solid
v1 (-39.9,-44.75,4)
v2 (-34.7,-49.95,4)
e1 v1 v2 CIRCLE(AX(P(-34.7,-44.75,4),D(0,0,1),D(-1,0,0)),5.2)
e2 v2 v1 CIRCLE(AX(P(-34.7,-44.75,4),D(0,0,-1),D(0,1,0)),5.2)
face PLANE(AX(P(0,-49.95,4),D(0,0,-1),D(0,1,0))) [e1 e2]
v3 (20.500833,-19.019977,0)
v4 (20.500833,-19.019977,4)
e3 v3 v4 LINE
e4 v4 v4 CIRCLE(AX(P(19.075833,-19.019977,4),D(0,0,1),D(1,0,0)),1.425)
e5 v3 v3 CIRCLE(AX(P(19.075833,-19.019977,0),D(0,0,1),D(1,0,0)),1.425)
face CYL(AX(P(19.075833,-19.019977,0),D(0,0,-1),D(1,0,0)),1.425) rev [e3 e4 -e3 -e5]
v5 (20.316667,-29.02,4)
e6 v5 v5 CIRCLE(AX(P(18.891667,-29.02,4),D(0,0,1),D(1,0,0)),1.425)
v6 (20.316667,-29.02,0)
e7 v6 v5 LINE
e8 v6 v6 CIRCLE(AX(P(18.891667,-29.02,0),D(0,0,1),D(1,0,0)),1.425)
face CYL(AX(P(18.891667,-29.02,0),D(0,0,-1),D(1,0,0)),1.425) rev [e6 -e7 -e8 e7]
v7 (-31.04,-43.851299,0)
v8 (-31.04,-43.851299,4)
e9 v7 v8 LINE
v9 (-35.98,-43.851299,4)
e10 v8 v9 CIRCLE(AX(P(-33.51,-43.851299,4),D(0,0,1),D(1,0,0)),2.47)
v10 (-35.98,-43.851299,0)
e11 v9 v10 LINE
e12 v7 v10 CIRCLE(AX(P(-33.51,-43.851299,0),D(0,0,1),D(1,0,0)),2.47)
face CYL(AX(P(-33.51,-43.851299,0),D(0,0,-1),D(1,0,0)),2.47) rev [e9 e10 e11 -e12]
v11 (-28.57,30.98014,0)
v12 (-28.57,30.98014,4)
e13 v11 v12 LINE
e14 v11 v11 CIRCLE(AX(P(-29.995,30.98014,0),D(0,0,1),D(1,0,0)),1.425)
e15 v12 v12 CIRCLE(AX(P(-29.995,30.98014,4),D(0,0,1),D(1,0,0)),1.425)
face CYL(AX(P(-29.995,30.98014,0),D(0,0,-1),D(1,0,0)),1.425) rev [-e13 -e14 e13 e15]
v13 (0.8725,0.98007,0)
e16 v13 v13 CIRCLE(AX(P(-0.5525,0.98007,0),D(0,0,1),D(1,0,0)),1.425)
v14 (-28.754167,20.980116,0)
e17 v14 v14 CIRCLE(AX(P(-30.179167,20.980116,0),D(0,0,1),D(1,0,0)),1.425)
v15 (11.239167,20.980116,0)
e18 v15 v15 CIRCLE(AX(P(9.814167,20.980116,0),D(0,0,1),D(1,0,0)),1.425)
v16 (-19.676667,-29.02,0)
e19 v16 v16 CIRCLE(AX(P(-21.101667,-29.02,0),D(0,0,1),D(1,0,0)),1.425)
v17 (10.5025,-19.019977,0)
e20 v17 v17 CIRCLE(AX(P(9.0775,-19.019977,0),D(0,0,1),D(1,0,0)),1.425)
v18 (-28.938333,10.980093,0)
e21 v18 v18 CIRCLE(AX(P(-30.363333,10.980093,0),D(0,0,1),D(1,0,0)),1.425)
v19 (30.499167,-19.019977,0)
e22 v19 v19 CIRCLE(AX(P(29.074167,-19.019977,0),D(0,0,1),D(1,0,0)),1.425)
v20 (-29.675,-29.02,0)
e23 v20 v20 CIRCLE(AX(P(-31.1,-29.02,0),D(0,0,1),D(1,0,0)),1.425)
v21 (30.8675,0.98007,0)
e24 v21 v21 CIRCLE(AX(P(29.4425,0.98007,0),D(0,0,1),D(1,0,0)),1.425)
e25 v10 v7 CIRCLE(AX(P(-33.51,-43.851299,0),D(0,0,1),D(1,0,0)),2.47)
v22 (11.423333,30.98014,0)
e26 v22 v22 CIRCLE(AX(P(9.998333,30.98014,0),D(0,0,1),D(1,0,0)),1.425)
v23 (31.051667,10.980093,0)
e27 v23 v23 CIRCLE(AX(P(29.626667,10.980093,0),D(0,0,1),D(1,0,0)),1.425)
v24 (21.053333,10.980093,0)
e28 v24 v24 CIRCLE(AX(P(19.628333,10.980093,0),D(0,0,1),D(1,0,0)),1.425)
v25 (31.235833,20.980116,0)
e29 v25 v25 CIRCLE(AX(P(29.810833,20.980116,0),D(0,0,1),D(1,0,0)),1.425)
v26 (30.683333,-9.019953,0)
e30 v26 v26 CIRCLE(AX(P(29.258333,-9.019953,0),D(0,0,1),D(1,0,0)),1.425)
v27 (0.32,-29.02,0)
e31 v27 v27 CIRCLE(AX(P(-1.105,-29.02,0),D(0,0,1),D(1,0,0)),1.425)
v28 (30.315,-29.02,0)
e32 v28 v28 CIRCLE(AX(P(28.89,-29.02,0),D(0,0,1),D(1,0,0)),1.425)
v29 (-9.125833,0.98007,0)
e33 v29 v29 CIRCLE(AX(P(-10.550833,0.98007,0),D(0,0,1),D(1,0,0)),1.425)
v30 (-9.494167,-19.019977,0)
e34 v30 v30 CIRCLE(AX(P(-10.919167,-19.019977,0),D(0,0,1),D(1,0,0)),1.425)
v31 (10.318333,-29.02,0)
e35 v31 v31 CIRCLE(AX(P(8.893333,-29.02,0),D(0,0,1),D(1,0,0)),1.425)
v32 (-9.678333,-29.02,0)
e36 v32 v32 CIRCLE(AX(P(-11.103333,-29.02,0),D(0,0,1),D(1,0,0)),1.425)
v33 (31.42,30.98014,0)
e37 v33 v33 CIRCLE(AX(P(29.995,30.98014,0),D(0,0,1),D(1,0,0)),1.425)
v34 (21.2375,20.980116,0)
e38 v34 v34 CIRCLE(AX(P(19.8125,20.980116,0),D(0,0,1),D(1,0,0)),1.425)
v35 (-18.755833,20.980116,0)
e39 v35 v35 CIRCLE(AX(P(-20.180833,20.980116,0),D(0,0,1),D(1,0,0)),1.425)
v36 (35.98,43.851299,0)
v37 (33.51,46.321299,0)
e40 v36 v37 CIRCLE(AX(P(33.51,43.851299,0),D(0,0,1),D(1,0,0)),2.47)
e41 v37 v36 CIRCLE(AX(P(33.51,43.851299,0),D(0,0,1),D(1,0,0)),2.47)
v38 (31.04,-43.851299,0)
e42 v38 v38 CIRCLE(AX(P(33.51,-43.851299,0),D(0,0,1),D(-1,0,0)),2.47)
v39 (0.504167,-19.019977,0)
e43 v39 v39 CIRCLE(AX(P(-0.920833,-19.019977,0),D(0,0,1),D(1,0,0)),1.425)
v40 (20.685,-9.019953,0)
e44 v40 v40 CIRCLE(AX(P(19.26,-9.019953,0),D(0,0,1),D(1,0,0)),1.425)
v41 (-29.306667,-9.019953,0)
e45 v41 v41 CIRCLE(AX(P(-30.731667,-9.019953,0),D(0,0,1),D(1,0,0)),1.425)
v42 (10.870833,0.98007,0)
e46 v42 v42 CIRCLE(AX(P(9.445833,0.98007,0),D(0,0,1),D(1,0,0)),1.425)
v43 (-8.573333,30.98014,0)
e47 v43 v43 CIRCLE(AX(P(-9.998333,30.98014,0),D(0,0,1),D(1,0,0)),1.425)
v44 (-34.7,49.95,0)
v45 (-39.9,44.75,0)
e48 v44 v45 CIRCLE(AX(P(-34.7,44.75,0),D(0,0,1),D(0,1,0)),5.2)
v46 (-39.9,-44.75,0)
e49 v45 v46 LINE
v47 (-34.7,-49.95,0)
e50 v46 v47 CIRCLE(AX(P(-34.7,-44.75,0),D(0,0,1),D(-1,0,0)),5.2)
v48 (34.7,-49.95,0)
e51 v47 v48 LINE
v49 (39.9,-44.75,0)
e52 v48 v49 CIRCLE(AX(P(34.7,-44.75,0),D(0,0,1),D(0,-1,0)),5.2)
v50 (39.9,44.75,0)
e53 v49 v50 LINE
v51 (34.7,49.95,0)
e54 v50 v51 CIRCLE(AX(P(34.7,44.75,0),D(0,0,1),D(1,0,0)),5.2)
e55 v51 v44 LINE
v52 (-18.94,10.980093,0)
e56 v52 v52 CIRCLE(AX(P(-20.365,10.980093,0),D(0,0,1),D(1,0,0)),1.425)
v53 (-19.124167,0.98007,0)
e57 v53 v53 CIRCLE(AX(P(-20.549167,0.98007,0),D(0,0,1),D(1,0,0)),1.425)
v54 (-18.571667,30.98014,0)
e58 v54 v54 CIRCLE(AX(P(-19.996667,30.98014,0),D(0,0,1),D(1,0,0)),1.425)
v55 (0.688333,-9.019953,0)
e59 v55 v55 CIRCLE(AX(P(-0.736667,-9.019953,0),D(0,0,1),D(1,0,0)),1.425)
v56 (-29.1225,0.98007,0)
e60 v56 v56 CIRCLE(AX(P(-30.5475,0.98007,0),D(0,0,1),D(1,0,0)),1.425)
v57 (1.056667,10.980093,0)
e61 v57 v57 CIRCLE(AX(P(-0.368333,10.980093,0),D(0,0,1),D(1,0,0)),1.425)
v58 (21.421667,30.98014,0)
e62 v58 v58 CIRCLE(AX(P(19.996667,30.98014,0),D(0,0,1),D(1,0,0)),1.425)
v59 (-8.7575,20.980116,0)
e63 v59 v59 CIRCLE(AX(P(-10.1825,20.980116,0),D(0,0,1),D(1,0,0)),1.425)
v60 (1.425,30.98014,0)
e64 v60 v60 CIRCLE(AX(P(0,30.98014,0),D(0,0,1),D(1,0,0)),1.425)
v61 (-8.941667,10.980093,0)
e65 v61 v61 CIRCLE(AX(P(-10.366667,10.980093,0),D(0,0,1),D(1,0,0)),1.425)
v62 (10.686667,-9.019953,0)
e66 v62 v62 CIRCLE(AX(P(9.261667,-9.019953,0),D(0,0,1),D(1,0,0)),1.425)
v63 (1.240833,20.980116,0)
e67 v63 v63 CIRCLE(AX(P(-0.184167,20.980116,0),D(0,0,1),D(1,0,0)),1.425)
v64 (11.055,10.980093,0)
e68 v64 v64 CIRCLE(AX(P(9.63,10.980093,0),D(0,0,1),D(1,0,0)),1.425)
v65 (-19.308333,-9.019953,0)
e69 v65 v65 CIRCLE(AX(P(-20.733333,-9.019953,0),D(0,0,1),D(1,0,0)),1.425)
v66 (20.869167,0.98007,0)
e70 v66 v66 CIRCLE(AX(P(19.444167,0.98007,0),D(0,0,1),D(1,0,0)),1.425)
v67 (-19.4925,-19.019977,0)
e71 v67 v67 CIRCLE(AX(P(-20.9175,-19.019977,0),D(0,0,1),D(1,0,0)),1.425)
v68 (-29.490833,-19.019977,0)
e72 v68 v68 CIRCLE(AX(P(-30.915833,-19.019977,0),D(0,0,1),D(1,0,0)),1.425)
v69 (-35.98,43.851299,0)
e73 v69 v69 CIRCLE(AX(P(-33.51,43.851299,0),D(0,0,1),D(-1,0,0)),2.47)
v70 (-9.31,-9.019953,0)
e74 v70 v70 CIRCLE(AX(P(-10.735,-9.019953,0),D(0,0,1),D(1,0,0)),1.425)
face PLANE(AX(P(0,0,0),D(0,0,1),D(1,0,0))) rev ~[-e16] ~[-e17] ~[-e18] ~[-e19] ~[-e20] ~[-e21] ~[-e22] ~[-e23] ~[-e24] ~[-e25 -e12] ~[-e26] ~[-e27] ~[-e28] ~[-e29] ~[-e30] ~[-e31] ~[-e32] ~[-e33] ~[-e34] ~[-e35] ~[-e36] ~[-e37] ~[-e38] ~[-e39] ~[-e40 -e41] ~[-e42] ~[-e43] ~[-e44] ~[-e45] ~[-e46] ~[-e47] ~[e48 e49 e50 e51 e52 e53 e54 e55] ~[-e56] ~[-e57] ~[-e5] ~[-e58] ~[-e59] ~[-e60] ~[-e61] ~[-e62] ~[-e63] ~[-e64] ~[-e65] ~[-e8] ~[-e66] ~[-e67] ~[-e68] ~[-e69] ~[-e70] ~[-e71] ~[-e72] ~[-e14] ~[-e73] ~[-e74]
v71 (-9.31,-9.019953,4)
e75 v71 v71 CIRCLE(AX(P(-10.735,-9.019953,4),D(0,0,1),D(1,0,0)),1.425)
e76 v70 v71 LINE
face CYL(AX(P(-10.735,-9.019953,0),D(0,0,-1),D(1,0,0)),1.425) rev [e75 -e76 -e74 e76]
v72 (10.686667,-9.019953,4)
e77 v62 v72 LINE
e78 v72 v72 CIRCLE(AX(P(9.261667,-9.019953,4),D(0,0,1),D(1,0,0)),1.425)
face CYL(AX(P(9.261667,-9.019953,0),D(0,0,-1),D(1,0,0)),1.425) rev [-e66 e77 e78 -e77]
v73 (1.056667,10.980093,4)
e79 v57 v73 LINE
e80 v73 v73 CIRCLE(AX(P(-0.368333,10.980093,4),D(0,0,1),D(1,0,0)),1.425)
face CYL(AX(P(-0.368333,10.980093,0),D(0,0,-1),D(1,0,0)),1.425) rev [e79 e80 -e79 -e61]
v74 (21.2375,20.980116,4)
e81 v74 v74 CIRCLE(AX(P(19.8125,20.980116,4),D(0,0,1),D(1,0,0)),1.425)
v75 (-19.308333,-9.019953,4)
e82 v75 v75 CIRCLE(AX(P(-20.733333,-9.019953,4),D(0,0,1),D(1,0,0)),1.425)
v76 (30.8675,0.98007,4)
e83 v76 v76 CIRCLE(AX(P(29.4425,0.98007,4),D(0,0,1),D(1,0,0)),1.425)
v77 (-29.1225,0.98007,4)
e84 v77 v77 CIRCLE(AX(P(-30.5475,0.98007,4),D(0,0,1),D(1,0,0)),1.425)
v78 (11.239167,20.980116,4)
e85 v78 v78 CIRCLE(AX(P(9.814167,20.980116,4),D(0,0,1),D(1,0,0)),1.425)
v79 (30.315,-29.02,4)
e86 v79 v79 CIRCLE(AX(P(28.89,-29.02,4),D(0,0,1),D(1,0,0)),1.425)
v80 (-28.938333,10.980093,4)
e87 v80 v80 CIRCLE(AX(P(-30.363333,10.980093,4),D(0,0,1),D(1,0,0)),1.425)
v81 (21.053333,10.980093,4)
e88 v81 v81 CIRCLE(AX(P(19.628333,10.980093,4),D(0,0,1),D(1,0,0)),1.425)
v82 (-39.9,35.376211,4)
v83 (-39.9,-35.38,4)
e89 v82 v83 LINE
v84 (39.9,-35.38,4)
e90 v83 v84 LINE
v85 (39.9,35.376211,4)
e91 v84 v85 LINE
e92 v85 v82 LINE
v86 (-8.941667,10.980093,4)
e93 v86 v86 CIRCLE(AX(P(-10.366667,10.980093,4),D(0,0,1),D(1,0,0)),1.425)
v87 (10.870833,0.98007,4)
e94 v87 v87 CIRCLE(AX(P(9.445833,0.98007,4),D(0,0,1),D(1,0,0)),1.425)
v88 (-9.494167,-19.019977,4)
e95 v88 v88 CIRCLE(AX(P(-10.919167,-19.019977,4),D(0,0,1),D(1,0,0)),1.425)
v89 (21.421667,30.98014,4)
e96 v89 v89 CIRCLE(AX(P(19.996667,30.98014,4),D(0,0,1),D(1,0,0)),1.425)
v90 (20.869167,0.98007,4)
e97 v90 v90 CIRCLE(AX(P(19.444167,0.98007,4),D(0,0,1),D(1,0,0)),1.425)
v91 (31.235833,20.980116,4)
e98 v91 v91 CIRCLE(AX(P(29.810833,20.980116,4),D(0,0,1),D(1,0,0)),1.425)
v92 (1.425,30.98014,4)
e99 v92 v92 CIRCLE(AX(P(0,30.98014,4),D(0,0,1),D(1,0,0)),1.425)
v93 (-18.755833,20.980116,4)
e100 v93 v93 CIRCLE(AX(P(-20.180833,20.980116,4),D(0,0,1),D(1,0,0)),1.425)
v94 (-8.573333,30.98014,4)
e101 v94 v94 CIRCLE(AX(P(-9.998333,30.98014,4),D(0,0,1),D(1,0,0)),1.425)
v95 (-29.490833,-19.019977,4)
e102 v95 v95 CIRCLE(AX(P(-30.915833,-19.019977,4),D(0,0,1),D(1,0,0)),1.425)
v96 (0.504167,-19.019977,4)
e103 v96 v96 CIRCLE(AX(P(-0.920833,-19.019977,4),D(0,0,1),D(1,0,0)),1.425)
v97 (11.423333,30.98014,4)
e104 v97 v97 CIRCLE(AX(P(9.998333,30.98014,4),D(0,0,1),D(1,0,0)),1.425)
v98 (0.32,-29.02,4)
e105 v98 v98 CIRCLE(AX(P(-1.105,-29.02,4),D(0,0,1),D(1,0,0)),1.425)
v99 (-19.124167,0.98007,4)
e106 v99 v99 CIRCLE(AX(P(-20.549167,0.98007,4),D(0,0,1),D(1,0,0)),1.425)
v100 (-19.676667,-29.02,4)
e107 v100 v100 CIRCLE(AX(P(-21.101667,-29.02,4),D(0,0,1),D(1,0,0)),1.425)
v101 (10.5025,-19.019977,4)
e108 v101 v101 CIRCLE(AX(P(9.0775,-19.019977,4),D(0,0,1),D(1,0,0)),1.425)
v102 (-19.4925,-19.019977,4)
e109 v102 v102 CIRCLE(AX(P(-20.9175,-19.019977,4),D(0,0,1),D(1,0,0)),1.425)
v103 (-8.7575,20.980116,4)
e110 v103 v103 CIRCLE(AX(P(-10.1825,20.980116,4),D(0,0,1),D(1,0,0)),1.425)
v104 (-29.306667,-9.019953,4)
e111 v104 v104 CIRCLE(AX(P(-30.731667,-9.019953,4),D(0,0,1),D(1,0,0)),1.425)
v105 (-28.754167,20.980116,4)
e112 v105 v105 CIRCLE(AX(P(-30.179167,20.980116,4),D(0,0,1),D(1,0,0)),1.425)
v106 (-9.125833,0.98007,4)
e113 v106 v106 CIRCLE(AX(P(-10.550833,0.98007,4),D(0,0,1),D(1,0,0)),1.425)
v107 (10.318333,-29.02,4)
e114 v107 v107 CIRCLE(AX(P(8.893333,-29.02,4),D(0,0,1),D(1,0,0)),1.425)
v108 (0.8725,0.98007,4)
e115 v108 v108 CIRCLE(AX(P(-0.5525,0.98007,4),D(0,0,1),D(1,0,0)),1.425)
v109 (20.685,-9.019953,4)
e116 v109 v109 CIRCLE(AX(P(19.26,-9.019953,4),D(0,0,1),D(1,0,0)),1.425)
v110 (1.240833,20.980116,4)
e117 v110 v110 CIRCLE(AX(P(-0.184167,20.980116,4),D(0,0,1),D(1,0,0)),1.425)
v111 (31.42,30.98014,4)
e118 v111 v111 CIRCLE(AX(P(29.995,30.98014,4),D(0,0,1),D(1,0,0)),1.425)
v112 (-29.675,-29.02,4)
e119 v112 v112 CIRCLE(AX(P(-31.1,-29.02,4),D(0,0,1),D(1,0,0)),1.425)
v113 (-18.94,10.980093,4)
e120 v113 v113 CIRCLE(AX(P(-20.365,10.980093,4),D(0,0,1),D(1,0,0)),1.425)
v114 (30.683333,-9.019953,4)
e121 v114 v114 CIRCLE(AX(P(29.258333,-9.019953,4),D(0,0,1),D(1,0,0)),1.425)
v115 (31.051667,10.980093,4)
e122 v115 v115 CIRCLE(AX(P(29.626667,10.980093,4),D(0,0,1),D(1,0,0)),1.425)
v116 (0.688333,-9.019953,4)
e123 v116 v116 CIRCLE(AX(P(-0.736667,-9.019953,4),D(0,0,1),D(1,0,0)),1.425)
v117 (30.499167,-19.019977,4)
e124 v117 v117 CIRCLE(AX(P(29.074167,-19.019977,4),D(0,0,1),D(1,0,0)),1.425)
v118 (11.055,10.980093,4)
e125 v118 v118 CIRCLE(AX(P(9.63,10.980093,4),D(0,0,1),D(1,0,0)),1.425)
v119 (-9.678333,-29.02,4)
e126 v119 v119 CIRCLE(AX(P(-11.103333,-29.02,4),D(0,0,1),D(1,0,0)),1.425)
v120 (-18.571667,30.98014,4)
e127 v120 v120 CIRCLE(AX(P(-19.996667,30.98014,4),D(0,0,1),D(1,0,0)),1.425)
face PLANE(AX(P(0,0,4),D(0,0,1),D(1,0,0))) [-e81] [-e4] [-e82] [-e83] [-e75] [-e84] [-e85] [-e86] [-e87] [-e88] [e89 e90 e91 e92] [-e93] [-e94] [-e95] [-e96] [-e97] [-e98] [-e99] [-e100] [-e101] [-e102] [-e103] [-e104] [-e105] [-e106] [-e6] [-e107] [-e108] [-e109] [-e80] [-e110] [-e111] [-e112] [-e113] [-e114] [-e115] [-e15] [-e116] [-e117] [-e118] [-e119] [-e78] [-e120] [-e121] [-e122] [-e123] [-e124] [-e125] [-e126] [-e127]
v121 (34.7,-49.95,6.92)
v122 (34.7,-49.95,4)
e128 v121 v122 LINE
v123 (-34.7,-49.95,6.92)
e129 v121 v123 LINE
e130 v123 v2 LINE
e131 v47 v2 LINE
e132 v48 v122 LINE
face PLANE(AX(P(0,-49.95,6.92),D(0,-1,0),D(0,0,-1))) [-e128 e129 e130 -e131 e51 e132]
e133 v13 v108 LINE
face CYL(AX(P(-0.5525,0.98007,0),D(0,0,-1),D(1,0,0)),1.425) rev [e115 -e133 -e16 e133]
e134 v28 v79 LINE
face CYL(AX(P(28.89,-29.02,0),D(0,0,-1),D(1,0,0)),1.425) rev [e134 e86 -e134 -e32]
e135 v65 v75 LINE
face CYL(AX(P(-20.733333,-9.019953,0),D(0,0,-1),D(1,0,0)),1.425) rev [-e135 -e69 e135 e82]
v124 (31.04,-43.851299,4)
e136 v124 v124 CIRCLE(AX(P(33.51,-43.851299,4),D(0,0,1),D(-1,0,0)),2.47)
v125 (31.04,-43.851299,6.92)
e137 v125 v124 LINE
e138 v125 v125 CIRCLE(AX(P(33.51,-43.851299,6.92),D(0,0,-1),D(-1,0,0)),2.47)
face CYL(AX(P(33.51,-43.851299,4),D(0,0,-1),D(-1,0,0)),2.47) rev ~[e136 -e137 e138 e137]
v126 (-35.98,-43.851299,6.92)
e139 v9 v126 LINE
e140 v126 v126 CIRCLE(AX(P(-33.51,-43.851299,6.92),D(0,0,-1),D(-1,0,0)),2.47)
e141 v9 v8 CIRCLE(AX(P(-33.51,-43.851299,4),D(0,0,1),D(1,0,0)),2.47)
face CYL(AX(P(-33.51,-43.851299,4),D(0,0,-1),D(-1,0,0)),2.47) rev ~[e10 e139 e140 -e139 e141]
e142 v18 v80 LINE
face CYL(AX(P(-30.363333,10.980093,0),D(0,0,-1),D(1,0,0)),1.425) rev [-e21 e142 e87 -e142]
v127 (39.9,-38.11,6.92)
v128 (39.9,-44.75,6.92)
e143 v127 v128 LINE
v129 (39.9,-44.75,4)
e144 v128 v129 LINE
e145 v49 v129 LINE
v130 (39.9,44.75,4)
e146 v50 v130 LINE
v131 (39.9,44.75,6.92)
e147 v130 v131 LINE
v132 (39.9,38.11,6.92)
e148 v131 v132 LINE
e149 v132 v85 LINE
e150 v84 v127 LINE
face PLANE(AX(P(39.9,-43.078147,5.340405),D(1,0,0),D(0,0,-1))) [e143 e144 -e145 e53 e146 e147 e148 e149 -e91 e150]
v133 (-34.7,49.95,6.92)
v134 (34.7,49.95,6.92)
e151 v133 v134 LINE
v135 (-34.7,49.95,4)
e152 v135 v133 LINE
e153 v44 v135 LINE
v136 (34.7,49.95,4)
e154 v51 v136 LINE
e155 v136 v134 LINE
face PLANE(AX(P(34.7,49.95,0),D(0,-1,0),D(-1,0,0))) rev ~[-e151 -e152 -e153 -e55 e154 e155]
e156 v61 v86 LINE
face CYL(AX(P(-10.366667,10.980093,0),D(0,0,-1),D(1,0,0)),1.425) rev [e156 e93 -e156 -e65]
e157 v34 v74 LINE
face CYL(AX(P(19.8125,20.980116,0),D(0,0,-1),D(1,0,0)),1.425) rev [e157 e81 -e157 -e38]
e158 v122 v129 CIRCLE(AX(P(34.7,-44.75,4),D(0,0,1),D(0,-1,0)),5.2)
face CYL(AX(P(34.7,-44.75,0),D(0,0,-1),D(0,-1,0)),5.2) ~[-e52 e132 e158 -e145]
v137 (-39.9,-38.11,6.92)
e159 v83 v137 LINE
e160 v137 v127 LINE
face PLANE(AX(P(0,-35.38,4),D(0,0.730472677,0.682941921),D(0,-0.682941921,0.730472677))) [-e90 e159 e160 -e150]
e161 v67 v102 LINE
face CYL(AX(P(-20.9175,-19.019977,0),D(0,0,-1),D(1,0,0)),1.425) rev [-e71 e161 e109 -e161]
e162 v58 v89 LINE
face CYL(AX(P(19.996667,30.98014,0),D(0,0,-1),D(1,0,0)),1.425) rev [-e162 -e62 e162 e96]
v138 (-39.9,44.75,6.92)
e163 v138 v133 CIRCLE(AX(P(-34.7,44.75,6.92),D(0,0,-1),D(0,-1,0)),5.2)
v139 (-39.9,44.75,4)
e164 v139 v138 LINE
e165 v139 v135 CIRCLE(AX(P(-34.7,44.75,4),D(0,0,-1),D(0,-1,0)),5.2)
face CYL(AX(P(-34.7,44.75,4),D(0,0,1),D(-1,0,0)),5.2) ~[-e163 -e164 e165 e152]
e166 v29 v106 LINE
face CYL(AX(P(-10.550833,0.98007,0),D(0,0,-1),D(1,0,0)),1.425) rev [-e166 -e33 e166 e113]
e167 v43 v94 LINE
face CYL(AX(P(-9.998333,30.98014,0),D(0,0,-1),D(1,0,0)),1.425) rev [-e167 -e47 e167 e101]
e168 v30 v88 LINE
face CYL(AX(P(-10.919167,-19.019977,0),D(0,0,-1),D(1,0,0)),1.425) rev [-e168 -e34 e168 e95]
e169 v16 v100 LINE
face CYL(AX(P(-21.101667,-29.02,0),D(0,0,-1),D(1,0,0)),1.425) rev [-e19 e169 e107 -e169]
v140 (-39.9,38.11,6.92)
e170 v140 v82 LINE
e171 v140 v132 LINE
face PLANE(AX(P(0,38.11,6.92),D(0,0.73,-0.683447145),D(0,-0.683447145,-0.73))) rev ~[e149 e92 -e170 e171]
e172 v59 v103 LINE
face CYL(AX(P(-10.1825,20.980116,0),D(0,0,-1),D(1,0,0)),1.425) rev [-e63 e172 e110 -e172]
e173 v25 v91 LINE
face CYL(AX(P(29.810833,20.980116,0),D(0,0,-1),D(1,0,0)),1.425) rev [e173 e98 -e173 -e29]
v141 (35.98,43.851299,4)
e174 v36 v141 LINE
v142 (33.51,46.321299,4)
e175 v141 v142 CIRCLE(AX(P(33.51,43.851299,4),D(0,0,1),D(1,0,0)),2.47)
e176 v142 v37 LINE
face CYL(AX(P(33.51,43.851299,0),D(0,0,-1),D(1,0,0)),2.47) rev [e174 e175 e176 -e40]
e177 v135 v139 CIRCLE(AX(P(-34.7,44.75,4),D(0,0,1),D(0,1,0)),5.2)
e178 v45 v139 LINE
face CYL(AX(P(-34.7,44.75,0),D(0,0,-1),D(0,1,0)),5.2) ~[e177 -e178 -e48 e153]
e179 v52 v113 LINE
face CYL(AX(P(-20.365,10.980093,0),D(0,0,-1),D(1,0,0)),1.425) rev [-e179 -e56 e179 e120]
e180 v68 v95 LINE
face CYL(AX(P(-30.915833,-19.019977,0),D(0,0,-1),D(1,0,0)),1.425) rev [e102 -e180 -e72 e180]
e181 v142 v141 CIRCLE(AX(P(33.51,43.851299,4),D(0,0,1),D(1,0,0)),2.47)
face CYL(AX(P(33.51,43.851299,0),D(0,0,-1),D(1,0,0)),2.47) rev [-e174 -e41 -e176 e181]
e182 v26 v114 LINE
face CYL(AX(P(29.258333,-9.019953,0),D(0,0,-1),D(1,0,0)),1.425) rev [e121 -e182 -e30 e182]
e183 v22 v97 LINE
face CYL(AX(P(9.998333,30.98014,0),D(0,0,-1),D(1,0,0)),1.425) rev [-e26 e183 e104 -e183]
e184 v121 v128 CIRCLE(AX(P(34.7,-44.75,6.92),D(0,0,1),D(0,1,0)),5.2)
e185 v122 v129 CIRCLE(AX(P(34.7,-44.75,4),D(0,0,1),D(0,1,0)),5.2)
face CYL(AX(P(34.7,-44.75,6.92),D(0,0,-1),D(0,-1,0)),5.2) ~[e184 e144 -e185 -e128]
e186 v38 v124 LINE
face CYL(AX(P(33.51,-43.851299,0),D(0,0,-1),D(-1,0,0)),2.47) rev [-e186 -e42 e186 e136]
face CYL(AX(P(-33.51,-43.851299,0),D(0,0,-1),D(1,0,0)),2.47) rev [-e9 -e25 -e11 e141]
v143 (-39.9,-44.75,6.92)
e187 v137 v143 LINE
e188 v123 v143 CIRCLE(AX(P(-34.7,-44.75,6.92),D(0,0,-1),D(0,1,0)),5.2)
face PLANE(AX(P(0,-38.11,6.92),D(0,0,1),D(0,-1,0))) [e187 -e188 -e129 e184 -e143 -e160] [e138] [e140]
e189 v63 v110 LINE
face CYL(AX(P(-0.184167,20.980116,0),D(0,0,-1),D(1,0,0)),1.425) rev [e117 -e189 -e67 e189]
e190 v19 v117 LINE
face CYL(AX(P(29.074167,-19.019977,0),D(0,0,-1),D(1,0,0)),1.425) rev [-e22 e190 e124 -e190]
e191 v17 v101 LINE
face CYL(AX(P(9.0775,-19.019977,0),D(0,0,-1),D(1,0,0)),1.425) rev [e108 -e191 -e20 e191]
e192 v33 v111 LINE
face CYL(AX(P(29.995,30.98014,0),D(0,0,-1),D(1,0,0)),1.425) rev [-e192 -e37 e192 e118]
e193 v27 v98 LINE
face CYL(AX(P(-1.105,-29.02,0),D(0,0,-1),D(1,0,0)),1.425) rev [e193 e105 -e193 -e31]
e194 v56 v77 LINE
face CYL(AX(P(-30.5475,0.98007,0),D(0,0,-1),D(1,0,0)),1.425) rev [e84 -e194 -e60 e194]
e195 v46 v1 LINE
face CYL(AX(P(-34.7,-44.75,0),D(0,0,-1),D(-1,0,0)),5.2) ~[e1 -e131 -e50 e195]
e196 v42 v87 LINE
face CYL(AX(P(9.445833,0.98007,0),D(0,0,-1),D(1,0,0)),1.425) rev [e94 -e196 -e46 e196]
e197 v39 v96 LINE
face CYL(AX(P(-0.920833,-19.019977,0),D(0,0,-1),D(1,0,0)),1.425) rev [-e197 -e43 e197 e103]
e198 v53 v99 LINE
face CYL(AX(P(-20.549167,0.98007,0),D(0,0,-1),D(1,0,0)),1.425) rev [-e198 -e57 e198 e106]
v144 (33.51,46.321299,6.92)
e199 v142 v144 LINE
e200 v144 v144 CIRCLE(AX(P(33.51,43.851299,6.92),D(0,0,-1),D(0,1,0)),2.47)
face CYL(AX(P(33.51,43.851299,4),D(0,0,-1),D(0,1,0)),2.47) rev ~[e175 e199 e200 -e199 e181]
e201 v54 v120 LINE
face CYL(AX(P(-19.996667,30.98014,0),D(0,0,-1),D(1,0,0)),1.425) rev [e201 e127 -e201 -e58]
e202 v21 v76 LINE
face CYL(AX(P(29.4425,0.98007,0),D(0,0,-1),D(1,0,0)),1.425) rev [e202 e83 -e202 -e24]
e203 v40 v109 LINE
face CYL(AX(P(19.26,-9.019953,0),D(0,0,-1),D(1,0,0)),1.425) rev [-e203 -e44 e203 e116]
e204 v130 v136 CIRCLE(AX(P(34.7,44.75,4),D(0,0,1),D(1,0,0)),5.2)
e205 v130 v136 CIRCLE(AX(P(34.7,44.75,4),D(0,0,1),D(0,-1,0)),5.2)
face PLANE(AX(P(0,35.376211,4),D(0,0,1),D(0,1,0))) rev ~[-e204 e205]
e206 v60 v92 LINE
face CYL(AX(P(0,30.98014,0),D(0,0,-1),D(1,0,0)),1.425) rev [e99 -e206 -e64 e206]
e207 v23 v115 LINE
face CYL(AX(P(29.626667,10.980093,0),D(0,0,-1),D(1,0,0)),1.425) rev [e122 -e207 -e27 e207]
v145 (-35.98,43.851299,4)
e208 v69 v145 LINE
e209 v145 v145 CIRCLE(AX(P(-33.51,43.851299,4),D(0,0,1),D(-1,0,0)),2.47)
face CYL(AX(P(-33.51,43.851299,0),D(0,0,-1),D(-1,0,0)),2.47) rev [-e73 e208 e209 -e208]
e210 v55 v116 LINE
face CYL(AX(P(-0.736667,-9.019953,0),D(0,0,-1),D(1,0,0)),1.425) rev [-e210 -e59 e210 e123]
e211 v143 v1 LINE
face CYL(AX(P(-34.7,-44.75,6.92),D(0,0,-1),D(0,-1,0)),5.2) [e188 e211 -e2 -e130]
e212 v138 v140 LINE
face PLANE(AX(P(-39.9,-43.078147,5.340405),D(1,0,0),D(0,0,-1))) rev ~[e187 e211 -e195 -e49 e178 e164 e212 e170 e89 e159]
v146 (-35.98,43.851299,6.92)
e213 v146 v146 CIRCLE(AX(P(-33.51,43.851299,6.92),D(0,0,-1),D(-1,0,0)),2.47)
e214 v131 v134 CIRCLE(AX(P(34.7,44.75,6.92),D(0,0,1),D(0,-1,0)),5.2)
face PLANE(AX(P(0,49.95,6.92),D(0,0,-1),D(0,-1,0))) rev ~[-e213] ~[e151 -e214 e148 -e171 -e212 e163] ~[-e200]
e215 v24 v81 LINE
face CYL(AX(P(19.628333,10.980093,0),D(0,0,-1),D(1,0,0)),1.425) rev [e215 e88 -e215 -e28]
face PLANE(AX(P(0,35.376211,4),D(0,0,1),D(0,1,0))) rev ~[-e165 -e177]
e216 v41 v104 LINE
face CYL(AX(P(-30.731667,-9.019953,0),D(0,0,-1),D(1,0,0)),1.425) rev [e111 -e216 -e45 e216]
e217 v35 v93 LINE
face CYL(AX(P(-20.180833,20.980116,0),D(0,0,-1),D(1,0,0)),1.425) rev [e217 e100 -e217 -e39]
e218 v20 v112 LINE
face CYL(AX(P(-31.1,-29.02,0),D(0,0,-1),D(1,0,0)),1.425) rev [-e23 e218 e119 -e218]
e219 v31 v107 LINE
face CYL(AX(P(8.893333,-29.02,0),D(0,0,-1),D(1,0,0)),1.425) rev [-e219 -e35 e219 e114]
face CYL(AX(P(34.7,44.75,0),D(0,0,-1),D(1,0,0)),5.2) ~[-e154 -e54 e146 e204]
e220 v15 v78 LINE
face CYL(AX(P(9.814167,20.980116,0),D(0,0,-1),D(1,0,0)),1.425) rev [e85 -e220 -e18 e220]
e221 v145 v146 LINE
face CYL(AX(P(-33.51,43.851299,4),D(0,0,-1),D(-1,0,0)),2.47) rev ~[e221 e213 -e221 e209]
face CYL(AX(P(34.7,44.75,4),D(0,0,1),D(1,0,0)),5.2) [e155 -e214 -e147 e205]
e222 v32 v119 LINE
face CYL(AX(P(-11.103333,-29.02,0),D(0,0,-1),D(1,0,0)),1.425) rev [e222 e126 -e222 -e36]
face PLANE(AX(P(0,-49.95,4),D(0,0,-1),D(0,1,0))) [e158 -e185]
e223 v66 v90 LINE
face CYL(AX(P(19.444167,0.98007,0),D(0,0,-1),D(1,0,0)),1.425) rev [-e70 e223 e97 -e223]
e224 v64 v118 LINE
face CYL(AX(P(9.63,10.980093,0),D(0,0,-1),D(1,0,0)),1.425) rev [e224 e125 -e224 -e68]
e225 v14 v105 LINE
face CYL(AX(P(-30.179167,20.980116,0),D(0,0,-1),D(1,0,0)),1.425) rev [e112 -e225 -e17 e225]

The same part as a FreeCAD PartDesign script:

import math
import FreeCAD as App
import Part
import Sketcher


def edges_at(feature, points):
    """Names of the edges that pass closest to the given points."""
    edges = feature.Shape.Edges
    near = lambda p: min(range(len(edges)), key=lambda i: edges[i].distToShape(Part.Vertex(*p))[0])
    return sorted({f"Edge{near(p) + 1}" for p in points})


def add_polygon(sketch, points):
    """Adds a closed chain of lines whose ends are joined by coincident constraints."""
    first, n = sketch.GeometryCount, len(points)
    for a, b in zip(points, points[1:] + points[:1]):
        sketch.addGeometry(Part.LineSegment(App.Vector(*a, 0), App.Vector(*b, 0)), False)
    for i in range(n):
        sketch.addConstraint(Sketcher.Constraint("Coincident", first + i, 2, first + (i + 1) % n, 1))

doc = App.newDocument("Part")
body = doc.addObject("PartDesign::Body", "Body")

# Sketch on XY plane
sketch1 = body.newObject("Sketcher::SketchObject", "Sketch")
sketch1.AttachmentSupport = (doc.getObject("XY_Plane"), [""])
sketch1.MapMode = "FlatFace"
sketch1.addGeometry(Part.LineSegment(App.Vector(-34.7, -49.95, 0), App.Vector(34.7, -49.95, 0)), False)
sketch1.addGeometry(Part.ArcOfCircle(Part.Circle(App.Vector(34.7, -44.75, 0), App.Vector(0, 0, 1), 5.2), math.radians(-90), math.radians(0)), False)
sketch1.addGeometry(Part.LineSegment(App.Vector(39.9, -44.75, 0), App.Vector(39.9, 44.75, 0)), False)
sketch1.addGeometry(Part.ArcOfCircle(Part.Circle(App.Vector(34.7, 44.75, 0), App.Vector(0, 0, 1), 5.2), math.radians(0), math.radians(90)), False)
sketch1.addGeometry(Part.LineSegment(App.Vector(34.7, 49.95, 0), App.Vector(-34.7, 49.95, 0)), False)
sketch1.addGeometry(Part.ArcOfCircle(Part.Circle(App.Vector(-34.7, 44.75, 0), App.Vector(0, 0, 1), 5.2), math.radians(90), math.radians(180)), False)
sketch1.addGeometry(Part.LineSegment(App.Vector(-39.9, 44.75, 0), App.Vector(-39.9, -44.75, 0)), False)
sketch1.addGeometry(Part.ArcOfCircle(Part.Circle(App.Vector(-34.7, -44.75, 0), App.Vector(0, 0, 1), 5.2), math.radians(-180), math.radians(-90)), False)
sketch1.addGeometry(Part.Circle(App.Vector(-33.51, -43.851299, 0), App.Vector(0, 0, 1), 2.47), False)
sketch1.addGeometry(Part.Circle(App.Vector(-31.1, -29.02, 0), App.Vector(0, 0, 1), 1.425), False)
sketch1.addGeometry(Part.Circle(App.Vector(-21.101667, -29.02, 0), App.Vector(0, 0, 1), 1.425), False)
sketch1.addGeometry(Part.Circle(App.Vector(-11.103333, -29.02, 0), App.Vector(0, 0, 1), 1.425), False)
sketch1.addGeometry(Part.Circle(App.Vector(-1.105, -29.02, 0), App.Vector(0, 0, 1), 1.425), False)
sketch1.addGeometry(Part.Circle(App.Vector(-30.915833, -19.019977, 0), App.Vector(0, 0, 1), 1.425), False)
sketch1.addGeometry(Part.Circle(App.Vector(-20.9175, -19.019977, 0), App.Vector(0, 0, 1), 1.425), False)
sketch1.addGeometry(Part.Circle(App.Vector(-30.731667, -9.019953, 0), App.Vector(0, 0, 1), 1.425), False)
sketch1.addGeometry(Part.Circle(App.Vector(-20.733333, -9.019953, 0), App.Vector(0, 0, 1), 1.425), False)
sketch1.addGeometry(Part.Circle(App.Vector(-10.919167, -19.019977, 0), App.Vector(0, 0, 1), 1.425), False)
sketch1.addGeometry(Part.Circle(App.Vector(-0.920833, -19.019977, 0), App.Vector(0, 0, 1), 1.425), False)
sketch1.addGeometry(Part.Circle(App.Vector(-10.735, -9.019953, 0), App.Vector(0, 0, 1), 1.425), False)
sketch1.addGeometry(Part.Circle(App.Vector(-0.736667, -9.019953, 0), App.Vector(0, 0, 1), 1.425), False)
sketch1.addGeometry(Part.Circle(App.Vector(8.893333, -29.02, 0), App.Vector(0, 0, 1), 1.425), False)
sketch1.addGeometry(Part.Circle(App.Vector(33.51, -43.851299, 0), App.Vector(0, 0, 1), 2.47), False)
sketch1.addGeometry(Part.Circle(App.Vector(18.891667, -29.02, 0), App.Vector(0, 0, 1), 1.425), False)
sketch1.addGeometry(Part.Circle(App.Vector(28.89, -29.02, 0), App.Vector(0, 0, 1), 1.425), False)
sketch1.addGeometry(Part.Circle(App.Vector(9.0775, -19.019977, 0), App.Vector(0, 0, 1), 1.425), False)
sketch1.addGeometry(Part.Circle(App.Vector(9.261667, -9.019953, 0), App.Vector(0, 0, 1), 1.425), False)
sketch1.addGeometry(Part.Circle(App.Vector(19.075833, -19.019977, 0), App.Vector(0, 0, 1), 1.425), False)
sketch1.addGeometry(Part.Circle(App.Vector(29.074167, -19.019977, 0), App.Vector(0, 0, 1), 1.425), False)
sketch1.addGeometry(Part.Circle(App.Vector(19.26, -9.019953, 0), App.Vector(0, 0, 1), 1.425), False)
sketch1.addGeometry(Part.Circle(App.Vector(29.258333, -9.019953, 0), App.Vector(0, 0, 1), 1.425), False)
sketch1.addGeometry(Part.Circle(App.Vector(-30.5475, 0.98007, 0), App.Vector(0, 0, 1), 1.425), False)
sketch1.addGeometry(Part.Circle(App.Vector(-30.363333, 10.980093, 0), App.Vector(0, 0, 1), 1.425), False)
sketch1.addGeometry(Part.Circle(App.Vector(-20.549167, 0.98007, 0), App.Vector(0, 0, 1), 1.425), False)
sketch1.addGeometry(Part.Circle(App.Vector(-20.365, 10.980093, 0), App.Vector(0, 0, 1), 1.425), False)
sketch1.addGeometry(Part.Circle(App.Vector(-30.179167, 20.980116, 0), App.Vector(0, 0, 1), 1.425), False)
sketch1.addGeometry(Part.Circle(App.Vector(-20.180833, 20.980116, 0), App.Vector(0, 0, 1), 1.425), False)
sketch1.addGeometry(Part.Circle(App.Vector(-10.550833, 0.98007, 0), App.Vector(0, 0, 1), 1.425), False)
sketch1.addGeometry(Part.Circle(App.Vector(-10.366667, 10.980093, 0), App.Vector(0, 0, 1), 1.425), False)
sketch1.addGeometry(Part.Circle(App.Vector(-0.5525, 0.98007, 0), App.Vector(0, 0, 1), 1.425), False)
sketch1.addGeometry(Part.Circle(App.Vector(-0.368333, 10.980093, 0), App.Vector(0, 0, 1), 1.425), False)
sketch1.addGeometry(Part.Circle(App.Vector(-10.1825, 20.980116, 0), App.Vector(0, 0, 1), 1.425), False)
sketch1.addGeometry(Part.Circle(App.Vector(-0.184167, 20.980116, 0), App.Vector(0, 0, 1), 1.425), False)
sketch1.addGeometry(Part.Circle(App.Vector(-29.995, 30.98014, 0), App.Vector(0, 0, 1), 1.425), False)
sketch1.addGeometry(Part.Circle(App.Vector(-19.996667, 30.98014, 0), App.Vector(0, 0, 1), 1.425), False)
sketch1.addGeometry(Part.Circle(App.Vector(-33.51, 43.851299, 0), App.Vector(0, 0, 1), 2.47), False)
sketch1.addGeometry(Part.Circle(App.Vector(-9.998333, 30.98014, 0), App.Vector(0, 0, 1), 1.425), False)
sketch1.addGeometry(Part.Circle(App.Vector(9.445833, 0.98007, 0), App.Vector(0, 0, 1), 1.425), False)
sketch1.addGeometry(Part.Circle(App.Vector(9.63, 10.980093, 0), App.Vector(0, 0, 1), 1.425), False)
sketch1.addGeometry(Part.Circle(App.Vector(9.814167, 20.980116, 0), App.Vector(0, 0, 1), 1.425), False)
sketch1.addGeometry(Part.Circle(App.Vector(19.444167, 0.98007, 0), App.Vector(0, 0, 1), 1.425), False)
sketch1.addGeometry(Part.Circle(App.Vector(19.628333, 10.980093, 0), App.Vector(0, 0, 1), 1.425), False)
sketch1.addGeometry(Part.Circle(App.Vector(29.4425, 0.98007, 0), App.Vector(0, 0, 1), 1.425), False)
sketch1.addGeometry(Part.Circle(App.Vector(29.626667, 10.980093, 0), App.Vector(0, 0, 1), 1.425), False)
sketch1.addGeometry(Part.Circle(App.Vector(19.8125, 20.980116, 0), App.Vector(0, 0, 1), 1.425), False)
sketch1.addGeometry(Part.Circle(App.Vector(29.810833, 20.980116, 0), App.Vector(0, 0, 1), 1.425), False)
sketch1.addGeometry(Part.Circle(App.Vector(0, 30.98014, 0), App.Vector(0, 0, 1), 1.425), False)
sketch1.addGeometry(Part.Circle(App.Vector(9.998333, 30.98014, 0), App.Vector(0, 0, 1), 1.425), False)
sketch1.addGeometry(Part.Circle(App.Vector(19.996667, 30.98014, 0), App.Vector(0, 0, 1), 1.425), False)
sketch1.addGeometry(Part.Circle(App.Vector(29.995, 30.98014, 0), App.Vector(0, 0, 1), 1.425), False)
sketch1.addGeometry(Part.Circle(App.Vector(33.51, 43.851299, 0), App.Vector(0, 0, 1), 2.47), False)
sketch1.addConstraint(Sketcher.Constraint("Tangent", 0, 2, 1, 1))
sketch1.addConstraint(Sketcher.Constraint("Tangent", 1, 2, 2, 1))
sketch1.addConstraint(Sketcher.Constraint("Tangent", 2, 2, 3, 1))
sketch1.addConstraint(Sketcher.Constraint("Tangent", 3, 2, 4, 1))
sketch1.addConstraint(Sketcher.Constraint("Tangent", 4, 2, 5, 1))
sketch1.addConstraint(Sketcher.Constraint("Tangent", 5, 2, 6, 1))
sketch1.addConstraint(Sketcher.Constraint("Tangent", 6, 2, 7, 1))
sketch1.addConstraint(Sketcher.Constraint("Tangent", 7, 2, 0, 1))
sketch1.addConstraint(Sketcher.Constraint("Horizontal", 0))
sketch1.addConstraint(Sketcher.Constraint("Vertical", 2))
sketch1.addConstraint(Sketcher.Constraint("Horizontal", 4))
sketch1.addConstraint(Sketcher.Constraint("Vertical", 6))
sketch1.addConstraint(Sketcher.Constraint("Equal", 1, 3))
sketch1.addConstraint(Sketcher.Constraint("Equal", 3, 5))
sketch1.addConstraint(Sketcher.Constraint("Equal", 5, 7))
sketch1.addConstraint(Sketcher.Constraint("Equal", 9, 10))
sketch1.addConstraint(Sketcher.Constraint("Equal", 10, 11))
sketch1.addConstraint(Sketcher.Constraint("Equal", 11, 12))
sketch1.addConstraint(Sketcher.Constraint("Equal", 12, 13))
sketch1.addConstraint(Sketcher.Constraint("Equal", 13, 14))
sketch1.addConstraint(Sketcher.Constraint("Equal", 14, 15))
sketch1.addConstraint(Sketcher.Constraint("Equal", 15, 16))
sketch1.addConstraint(Sketcher.Constraint("Equal", 16, 17))
sketch1.addConstraint(Sketcher.Constraint("Equal", 17, 18))
sketch1.addConstraint(Sketcher.Constraint("Equal", 18, 19))
sketch1.addConstraint(Sketcher.Constraint("Equal", 19, 20))
sketch1.addConstraint(Sketcher.Constraint("Equal", 20, 21))
sketch1.addConstraint(Sketcher.Constraint("Equal", 8, 22))
sketch1.addConstraint(Sketcher.Constraint("Equal", 21, 23))
sketch1.addConstraint(Sketcher.Constraint("Equal", 23, 24))
sketch1.addConstraint(Sketcher.Constraint("Equal", 24, 25))
sketch1.addConstraint(Sketcher.Constraint("Equal", 25, 26))
sketch1.addConstraint(Sketcher.Constraint("Equal", 26, 27))
sketch1.addConstraint(Sketcher.Constraint("Equal", 27, 28))
sketch1.addConstraint(Sketcher.Constraint("Equal", 28, 29))
sketch1.addConstraint(Sketcher.Constraint("Equal", 29, 30))
sketch1.addConstraint(Sketcher.Constraint("Equal", 30, 31))
sketch1.addConstraint(Sketcher.Constraint("Equal", 31, 32))
sketch1.addConstraint(Sketcher.Constraint("Equal", 32, 33))
sketch1.addConstraint(Sketcher.Constraint("Equal", 33, 34))
sketch1.addConstraint(Sketcher.Constraint("Equal", 34, 35))
sketch1.addConstraint(Sketcher.Constraint("Equal", 35, 36))
sketch1.addConstraint(Sketcher.Constraint("Equal", 36, 37))
sketch1.addConstraint(Sketcher.Constraint("Equal", 37, 38))
sketch1.addConstraint(Sketcher.Constraint("Equal", 38, 39))
sketch1.addConstraint(Sketcher.Constraint("Equal", 39, 40))
sketch1.addConstraint(Sketcher.Constraint("Equal", 40, 41))
sketch1.addConstraint(Sketcher.Constraint("Equal", 41, 42))
sketch1.addConstraint(Sketcher.Constraint("Equal", 42, 43))
sketch1.addConstraint(Sketcher.Constraint("Equal", 43, 44))
sketch1.addConstraint(Sketcher.Constraint("Equal", 22, 45))
sketch1.addConstraint(Sketcher.Constraint("Equal", 44, 46))
sketch1.addConstraint(Sketcher.Constraint("Equal", 46, 47))
sketch1.addConstraint(Sketcher.Constraint("Equal", 47, 48))
sketch1.addConstraint(Sketcher.Constraint("Equal", 48, 49))
sketch1.addConstraint(Sketcher.Constraint("Equal", 49, 50))
sketch1.addConstraint(Sketcher.Constraint("Equal", 50, 51))
sketch1.addConstraint(Sketcher.Constraint("Equal", 51, 52))
sketch1.addConstraint(Sketcher.Constraint("Equal", 52, 53))
sketch1.addConstraint(Sketcher.Constraint("Equal", 53, 54))
sketch1.addConstraint(Sketcher.Constraint("Equal", 54, 55))
sketch1.addConstraint(Sketcher.Constraint("Equal", 55, 56))
sketch1.addConstraint(Sketcher.Constraint("Equal", 56, 57))
sketch1.addConstraint(Sketcher.Constraint("Equal", 57, 58))
sketch1.addConstraint(Sketcher.Constraint("Equal", 58, 59))
sketch1.addConstraint(Sketcher.Constraint("Equal", 45, 60))
sketch1.addConstraint(Sketcher.Constraint("Symmetric", 1, 3, 5, 3, -1, 1))
sketch1.addConstraint(Sketcher.Constraint("Symmetric", 22, 3, 45, 3, -1, 1))
sketch1.addConstraint(Sketcher.Constraint("Symmetric", 8, 3, 60, 3, -1, 1))
sketch1.addConstraint(Sketcher.Constraint("Symmetric", 8, 3, 22, 3, -2))
sketch1.addConstraint(Sketcher.Constraint("Symmetric", 46, 3, 57, 3, -2))
sketch1.addConstraint(Sketcher.Constraint("Symmetric", 44, 3, 58, 3, -2))
sketch1.addConstraint(Sketcher.Constraint("Symmetric", 43, 3, 59, 3, -2))
sketch1.addConstraint(Sketcher.Constraint("PointOnObject", 56, 3, -2))
sketch1.addConstraint(Sketcher.Constraint("Horizontal", 9, 3, 10, 3))
sketch1.addConstraint(Sketcher.Constraint("Horizontal", 10, 3, 11, 3))
sketch1.addConstraint(Sketcher.Constraint("Horizontal", 11, 3, 12, 3))
sketch1.addConstraint(Sketcher.Constraint("Horizontal", 13, 3, 14, 3))
sketch1.addConstraint(Sketcher.Constraint("Horizontal", 15, 3, 16, 3))
sketch1.addConstraint(Sketcher.Constraint("Horizontal", 14, 3, 17, 3))
sketch1.addConstraint(Sketcher.Constraint("Horizontal", 17, 3, 18, 3))
sketch1.addConstraint(Sketcher.Constraint("Horizontal", 16, 3, 19, 3))
sketch1.addConstraint(Sketcher.Constraint("Horizontal", 19, 3, 20, 3))
sketch1.addConstraint(Sketcher.Constraint("Horizontal", 12, 3, 21, 3))
sketch1.addConstraint(Sketcher.Constraint("Horizontal", 21, 3, 23, 3))
sketch1.addConstraint(Sketcher.Constraint("Horizontal", 23, 3, 24, 3))
sketch1.addConstraint(Sketcher.Constraint("Horizontal", 18, 3, 25, 3))
sketch1.addConstraint(Sketcher.Constraint("Horizontal", 20, 3, 26, 3))
sketch1.addConstraint(Sketcher.Constraint("Horizontal", 25, 3, 27, 3))
sketch1.addConstraint(Sketcher.Constraint("Horizontal", 27, 3, 28, 3))
sketch1.addConstraint(Sketcher.Constraint("Horizontal", 26, 3, 29, 3))
sketch1.addConstraint(Sketcher.Constraint("Horizontal", 29, 3, 30, 3))
sketch1.addConstraint(Sketcher.Constraint("Horizontal", 31, 3, 33, 3))
sketch1.addConstraint(Sketcher.Constraint("Horizontal", 32, 3, 34, 3))
sketch1.addConstraint(Sketcher.Constraint("Horizontal", 35, 3, 36, 3))
sketch1.addConstraint(Sketcher.Constraint("Horizontal", 33, 3, 37, 3))
sketch1.addConstraint(Sketcher.Constraint("Horizontal", 34, 3, 38, 3))
sketch1.addConstraint(Sketcher.Constraint("Horizontal", 37, 3, 39, 3))
sketch1.addConstraint(Sketcher.Constraint("Horizontal", 38, 3, 40, 3))
sketch1.addConstraint(Sketcher.Constraint("Horizontal", 36, 3, 41, 3))
sketch1.addConstraint(Sketcher.Constraint("Horizontal", 41, 3, 42, 3))
sketch1.addConstraint(Sketcher.Constraint("Horizontal", 43, 3, 44, 3))
sketch1.addConstraint(Sketcher.Constraint("Horizontal", 44, 3, 46, 3))
sketch1.addConstraint(Sketcher.Constraint("Horizontal", 39, 3, 47, 3))
sketch1.addConstraint(Sketcher.Constraint("Horizontal", 40, 3, 48, 3))
sketch1.addConstraint(Sketcher.Constraint("Horizontal", 42, 3, 49, 3))
sketch1.addConstraint(Sketcher.Constraint("Horizontal", 47, 3, 50, 3))
sketch1.addConstraint(Sketcher.Constraint("Horizontal", 48, 3, 51, 3))
sketch1.addConstraint(Sketcher.Constraint("Horizontal", 50, 3, 52, 3))
sketch1.addConstraint(Sketcher.Constraint("Horizontal", 51, 3, 53, 3))
sketch1.addConstraint(Sketcher.Constraint("Horizontal", 49, 3, 54, 3))
sketch1.addConstraint(Sketcher.Constraint("Horizontal", 54, 3, 55, 3))
sketch1.addConstraint(Sketcher.Constraint("Horizontal", 46, 3, 56, 3))
sketch1.addConstraint(Sketcher.Constraint("Radius", 1, 5.2))
sketch1.addConstraint(Sketcher.Constraint("Diameter", 8, 4.94))
sketch1.addConstraint(Sketcher.Constraint("Diameter", 9, 2.85))
sketch1.addConstraint(Sketcher.Constraint("DistanceX", 0, 1, 0, 2, 69.4))
sketch1.addConstraint(Sketcher.Constraint("DistanceY", 2, 1, 2, 2, 89.5))
sketch1.addConstraint(Sketcher.Constraint("DistanceX", 9, 3, -1, 1, 31.1))
sketch1.addConstraint(Sketcher.Constraint("DistanceX", 8, 3, -1, 1, 33.51))
sketch1.addConstraint(Sketcher.Constraint("DistanceY", 9, 3, -1, 1, 29.02))
sketch1.addConstraint(Sketcher.Constraint("DistanceX", -1, 1, 24, 3, 28.89))
sketch1.addConstraint(Sketcher.Constraint("DistanceX", -1, 1, 29, 3, 19.26))
sketch1.addConstraint(Sketcher.Constraint("DistanceX", -1, 1, 48, 3, 9.63))
sketch1.addConstraint(Sketcher.Constraint("DistanceX", 12, 3, -1, 1, 1.105))
sketch1.addConstraint(Sketcher.Constraint("DistanceX", 19, 3, -1, 1, 10.735))
sketch1.addConstraint(Sketcher.Constraint("DistanceX", 34, 3, -1, 1, 20.365))
sketch1.addConstraint(Sketcher.Constraint("DistanceX", 43, 3, -1, 1, 29.995))
sketch1.addConstraint(Sketcher.Constraint("DistanceY", 8, 3, -1, 1, 43.851299))
sketch1.addConstraint(Sketcher.Constraint("DistanceX", 14, 3, -1, 1, 20.9175))
sketch1.addConstraint(Sketcher.Constraint("DistanceX", -1, 1, 25, 3, 9.0775))
sketch1.addConstraint(Sketcher.Constraint("DistanceX", 31, 3, -1, 1, 30.5475))
sketch1.addConstraint(Sketcher.Constraint("DistanceX", 39, 3, -1, 1, 0.5525))
sketch1.addConstraint(Sketcher.Constraint("DistanceX", 41, 3, -1, 1, 10.1825))
sketch1.addConstraint(Sketcher.Constraint("DistanceX", -1, 1, 52, 3, 29.4425))
sketch1.addConstraint(Sketcher.Constraint("DistanceX", -1, 1, 54, 3, 19.8125))
sketch1.addConstraint(Sketcher.Constraint("DistanceY", -1, 1, 31, 3, 0.98007))
sketch1.addConstraint(Sketcher.Constraint("DistanceY", -1, 1, 43, 3, 30.98014))
sketch1.addConstraint(Sketcher.Constraint("DistanceX", 10, 3, -1, 1, 21.101667))
sketch1.addConstraint(Sketcher.Constraint("DistanceX", 11, 3, -1, 1, 11.103333))
sketch1.addConstraint(Sketcher.Constraint("DistanceX", 13, 3, -1, 1, 30.915833))
sketch1.addConstraint(Sketcher.Constraint("DistanceY", 13, 3, -1, 1, 19.019977))
sketch1.addConstraint(Sketcher.Constraint("DistanceX", 15, 3, -1, 1, 30.731667))
sketch1.addConstraint(Sketcher.Constraint("DistanceY", 15, 3, -1, 1, 9.019953))
sketch1.addConstraint(Sketcher.Constraint("DistanceX", 16, 3, -1, 1, 20.733333))
sketch1.addConstraint(Sketcher.Constraint("DistanceX", 17, 3, -1, 1, 10.919167))
sketch1.addConstraint(Sketcher.Constraint("DistanceX", 18, 3, -1, 1, 0.920833))
sketch1.addConstraint(Sketcher.Constraint("DistanceX", 20, 3, -1, 1, 0.736667))
sketch1.addConstraint(Sketcher.Constraint("DistanceX", -1, 1, 21, 3, 8.893333))
sketch1.addConstraint(Sketcher.Constraint("DistanceX", -1, 1, 23, 3, 18.891667))
sketch1.addConstraint(Sketcher.Constraint("DistanceX", -1, 1, 26, 3, 9.261667))
sketch1.addConstraint(Sketcher.Constraint("DistanceX", -1, 1, 27, 3, 19.075833))
sketch1.addConstraint(Sketcher.Constraint("DistanceX", -1, 1, 28, 3, 29.074167))
sketch1.addConstraint(Sketcher.Constraint("DistanceX", -1, 1, 30, 3, 29.258333))
sketch1.addConstraint(Sketcher.Constraint("DistanceX", 32, 3, -1, 1, 30.363333))
sketch1.addConstraint(Sketcher.Constraint("DistanceY", -1, 1, 32, 3, 10.980093))
sketch1.addConstraint(Sketcher.Constraint("DistanceX", 33, 3, -1, 1, 20.549167))
sketch1.addConstraint(Sketcher.Constraint("DistanceX", 35, 3, -1, 1, 30.179167))
sketch1.addConstraint(Sketcher.Constraint("DistanceY", -1, 1, 35, 3, 20.980116))
sketch1.addConstraint(Sketcher.Constraint("DistanceX", 36, 3, -1, 1, 20.180833))
sketch1.addConstraint(Sketcher.Constraint("DistanceX", 37, 3, -1, 1, 10.550833))
sketch1.addConstraint(Sketcher.Constraint("DistanceX", 38, 3, -1, 1, 10.366667))
sketch1.addConstraint(Sketcher.Constraint("DistanceX", 40, 3, -1, 1, 0.368333))
sketch1.addConstraint(Sketcher.Constraint("DistanceX", 42, 3, -1, 1, 0.184167))
sketch1.addConstraint(Sketcher.Constraint("DistanceX", 44, 3, -1, 1, 19.996667))
sketch1.addConstraint(Sketcher.Constraint("DistanceX", 46, 3, -1, 1, 9.998333))
sketch1.addConstraint(Sketcher.Constraint("DistanceX", -1, 1, 47, 3, 9.445833))
sketch1.addConstraint(Sketcher.Constraint("DistanceX", -1, 1, 49, 3, 9.814167))
sketch1.addConstraint(Sketcher.Constraint("DistanceX", -1, 1, 50, 3, 19.444167))
sketch1.addConstraint(Sketcher.Constraint("DistanceX", -1, 1, 51, 3, 19.628333))
sketch1.addConstraint(Sketcher.Constraint("DistanceX", -1, 1, 53, 3, 29.626667))
sketch1.addConstraint(Sketcher.Constraint("DistanceX", -1, 1, 55, 3, 29.810833))
pad1 = body.newObject("PartDesign::Pad", "Pad")
pad1.Profile = sketch1
pad1.Length = 4

# Sketch on YZ plane
sketch2 = body.newObject("Sketcher::SketchObject", "Sketch001")
sketch2.AttachmentSupport = (doc.getObject("YZ_Plane"), [""])
sketch2.MapMode = "FlatFace"
add_polygon(sketch2, [(49.95, 4), (49.95, 6.92), (38.11, 6.92), (35.376211, 4)])  # lines 0-3
add_polygon(sketch2, [(-49.95, 4), (-35.38, 4), (-38.11, 6.92), (-49.95, 6.92)])  # lines 4-7
sketch2.addConstraint(Sketcher.Constraint("Vertical", 0))
sketch2.addConstraint(Sketcher.Constraint("Horizontal", 1))
sketch2.addConstraint(Sketcher.Constraint("Horizontal", 3))
sketch2.addConstraint(Sketcher.Constraint("Horizontal", 4))
sketch2.addConstraint(Sketcher.Constraint("Horizontal", 6))
sketch2.addConstraint(Sketcher.Constraint("Vertical", 7))
sketch2.addConstraint(Sketcher.Constraint("Symmetric", 1, 2, 5, 2, -2))
sketch2.addConstraint(Sketcher.Constraint("Symmetric", 3, 2, 7, 2, -2))
sketch2.addConstraint(Sketcher.Constraint("Distance", 2, 4.0))
sketch2.addConstraint(Sketcher.Constraint("DistanceY", -1, 1, 2, 2, 4.0))
sketch2.addConstraint(Sketcher.Constraint("DistanceX", 1, 2, 1, 1, 11.84))
sketch2.addConstraint(Sketcher.Constraint("DistanceX", 4, 1, 4, 2, 14.57))
sketch2.addConstraint(Sketcher.Constraint("DistanceY", 0, 1, 0, 2, 2.92))
sketch2.addConstraint(Sketcher.Constraint("DistanceX", 6, 2, 0, 2, 99.9))
pad2 = body.newObject("PartDesign::Pad", "Pad001")
pad2.Profile = sketch2
pad2.Length = 79.8
pad2.Midplane = True
doc.recompute()

fillet = body.newObject("PartDesign::Fillet", "Fillet")
fillet.Base = (pad2, edges_at(pad2, [
    (39.9, 49.95, 5.46),
    (-39.9, 49.95, 5.46),
    (-39.9, -49.95, 5.46),
    (39.9, -49.95, 5.46),
]))
fillet.Radius = 5.2

# Sketch on XY plane
sketch3 = body.newObject("Sketcher::SketchObject", "Sketch002")
sketch3.AttachmentSupport = (doc.getObject("XY_Plane"), [""])
sketch3.MapMode = "FlatFace"
sketch3.AttachmentOffset = App.Placement(App.Vector(0, 0, 4), App.Rotation())
sketch3.addGeometry(Part.Circle(App.Vector(33.51, 43.851299, 0), App.Vector(0, 0, 1), 2.47), False)
sketch3.addGeometry(Part.Circle(App.Vector(-33.51, 43.851299, 0), App.Vector(0, 0, 1), 2.47), False)
sketch3.addGeometry(Part.Circle(App.Vector(-33.51, -43.851299, 0), App.Vector(0, 0, 1), 2.47), False)
sketch3.addGeometry(Part.Circle(App.Vector(33.51, -43.851299, 0), App.Vector(0, 0, 1), 2.47), False)
sketch3.addConstraint(Sketcher.Constraint("Equal", 0, 1))
sketch3.addConstraint(Sketcher.Constraint("Equal", 1, 2))
sketch3.addConstraint(Sketcher.Constraint("Equal", 2, 3))
sketch3.addConstraint(Sketcher.Constraint("Symmetric", 0, 3, 2, 3, -1, 1))
sketch3.addConstraint(Sketcher.Constraint("Symmetric", 1, 3, 3, 3, -1, 1))
sketch3.addConstraint(Sketcher.Constraint("Symmetric", 0, 3, 1, 3, -2))
sketch3.addConstraint(Sketcher.Constraint("Diameter", 0, 4.94))
sketch3.addConstraint(Sketcher.Constraint("DistanceX", -1, 1, 0, 3, 33.51))
sketch3.addConstraint(Sketcher.Constraint("DistanceY", -1, 1, 0, 3, 43.851299))
pocket1 = body.newObject("PartDesign::Pocket", "Pocket")
pocket1.Profile = sketch3
pocket1.Length = 79.8
pocket1.Midplane = True

doc.recompute()
